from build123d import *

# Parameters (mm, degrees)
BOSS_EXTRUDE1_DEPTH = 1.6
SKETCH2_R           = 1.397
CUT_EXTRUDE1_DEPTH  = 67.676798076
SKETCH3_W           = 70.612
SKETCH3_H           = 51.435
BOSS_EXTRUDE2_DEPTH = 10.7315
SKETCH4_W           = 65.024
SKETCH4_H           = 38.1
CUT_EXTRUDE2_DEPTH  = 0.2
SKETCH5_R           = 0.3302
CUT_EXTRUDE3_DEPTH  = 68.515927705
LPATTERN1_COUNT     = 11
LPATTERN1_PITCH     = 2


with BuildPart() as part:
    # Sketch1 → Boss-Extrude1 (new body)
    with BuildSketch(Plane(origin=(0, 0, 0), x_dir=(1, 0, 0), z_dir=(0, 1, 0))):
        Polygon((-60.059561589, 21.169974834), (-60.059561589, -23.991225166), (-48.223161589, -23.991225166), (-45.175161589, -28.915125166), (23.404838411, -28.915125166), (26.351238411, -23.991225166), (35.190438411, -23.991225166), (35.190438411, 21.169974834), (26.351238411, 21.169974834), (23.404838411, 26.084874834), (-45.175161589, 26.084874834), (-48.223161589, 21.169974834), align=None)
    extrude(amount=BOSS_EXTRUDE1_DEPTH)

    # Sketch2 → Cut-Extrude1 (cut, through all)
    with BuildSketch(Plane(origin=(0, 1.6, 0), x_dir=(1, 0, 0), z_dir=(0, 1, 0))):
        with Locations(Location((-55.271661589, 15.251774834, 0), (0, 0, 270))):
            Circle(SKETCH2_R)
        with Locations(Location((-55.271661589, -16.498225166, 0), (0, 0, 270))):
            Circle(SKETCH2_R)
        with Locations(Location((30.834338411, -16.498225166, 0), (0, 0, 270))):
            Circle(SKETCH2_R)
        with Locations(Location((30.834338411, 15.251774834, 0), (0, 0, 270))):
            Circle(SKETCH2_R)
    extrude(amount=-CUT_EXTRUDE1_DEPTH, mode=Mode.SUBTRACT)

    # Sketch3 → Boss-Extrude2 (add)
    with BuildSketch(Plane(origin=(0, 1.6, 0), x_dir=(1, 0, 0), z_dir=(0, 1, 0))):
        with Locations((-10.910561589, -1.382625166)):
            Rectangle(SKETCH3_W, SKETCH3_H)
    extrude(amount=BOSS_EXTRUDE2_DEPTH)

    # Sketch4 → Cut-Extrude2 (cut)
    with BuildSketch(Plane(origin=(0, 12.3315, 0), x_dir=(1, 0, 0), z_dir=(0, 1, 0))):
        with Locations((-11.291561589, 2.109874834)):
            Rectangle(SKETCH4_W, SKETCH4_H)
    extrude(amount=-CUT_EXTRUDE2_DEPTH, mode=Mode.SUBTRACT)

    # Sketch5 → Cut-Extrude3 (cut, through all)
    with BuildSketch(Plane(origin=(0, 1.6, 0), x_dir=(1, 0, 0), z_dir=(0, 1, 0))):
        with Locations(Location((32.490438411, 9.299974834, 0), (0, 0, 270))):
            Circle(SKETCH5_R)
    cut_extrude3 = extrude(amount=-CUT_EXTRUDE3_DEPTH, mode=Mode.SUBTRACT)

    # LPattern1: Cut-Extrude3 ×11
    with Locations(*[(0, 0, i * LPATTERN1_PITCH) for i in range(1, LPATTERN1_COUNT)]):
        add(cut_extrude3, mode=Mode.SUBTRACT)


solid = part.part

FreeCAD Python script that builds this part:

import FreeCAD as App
import Part
import Sketcher
Q = App.Units.Quantity

doc = App.newDocument("Part")
body = doc.addObject("PartDesign::Body", "Body")

sketch1 = doc.addObject("Sketcher::SketchObject", "Sketch")
body.addObject(sketch1)
sketch1.AttachmentSupport = (doc.XZ_Plane, [""])
sketch1.MapMode = "FlatFace"
sketch1.addGeometry([
    Part.LineSegment(App.Vector(-60, -21, 0), App.Vector(-60, 24, 0)),
    Part.LineSegment(App.Vector(-60, 24, 0), App.Vector(-48, 24, 0)),
    Part.LineSegment(App.Vector(-48, 24, 0), App.Vector(-45, 29, 0)),
    Part.LineSegment(App.Vector(-45, 29, 0), App.Vector(23, 29, 0)),
    Part.LineSegment(App.Vector(23, 29, 0), App.Vector(26, 24, 0)),
    Part.LineSegment(App.Vector(26, 24, 0), App.Vector(35, 24, 0)),
    Part.LineSegment(App.Vector(35, 24, 0), App.Vector(35, -21, 0)),
    Part.LineSegment(App.Vector(35, -21, 0), App.Vector(26, -21, 0)),
    Part.LineSegment(App.Vector(26, -21, 0), App.Vector(23, -26, 0)),
    Part.LineSegment(App.Vector(23, -26, 0), App.Vector(-45, -26, 0)),
    Part.LineSegment(App.Vector(-45, -26, 0), App.Vector(-48, -21, 0)),
    Part.LineSegment(App.Vector(-48, -21, 0), App.Vector(-60, -21, 0)),
], False)
sketch1.addConstraint([
    Sketcher.Constraint("Coincident", 0, 2, 1, 1),
    Sketcher.Constraint("Coincident", 1, 2, 2, 1),
    Sketcher.Constraint("Coincident", 2, 2, 3, 1),
    Sketcher.Constraint("Coincident", 3, 2, 4, 1),
    Sketcher.Constraint("Coincident", 4, 2, 5, 1),
    Sketcher.Constraint("Coincident", 5, 2, 6, 1),
    Sketcher.Constraint("Coincident", 6, 2, 7, 1),
    Sketcher.Constraint("Coincident", 7, 2, 8, 1),
    Sketcher.Constraint("Coincident", 8, 2, 9, 1),
    Sketcher.Constraint("Coincident", 9, 2, 10, 1),
    Sketcher.Constraint("Coincident", 10, 2, 11, 1),
    Sketcher.Constraint("Coincident", 11, 2, 0, 1),
    Sketcher.Constraint("Vertical", 0),
    Sketcher.Constraint("Horizontal", 1),
    Sketcher.Constraint("Horizontal", 3),
    Sketcher.Constraint("Horizontal", 5),
    Sketcher.Constraint("Vertical", 6),
    Sketcher.Constraint("Horizontal", 7),
    Sketcher.Constraint("Horizontal", 9),
    Sketcher.Constraint("Horizontal", 11),
    Sketcher.Constraint("Horizontal", 1, 2, 4, 2),
    Sketcher.Constraint("Horizontal", 7, 2, 10, 2),
    Sketcher.Constraint("Vertical", 4, 2, 7, 2),
    Sketcher.Constraint("Vertical", 3, 2, 8, 2),
    Sketcher.Constraint("Vertical", 2, 2, 9, 2),
    Sketcher.Constraint("Vertical", 1, 2, 10, 2),
    Sketcher.Constraint("DistanceX", 3, 1, 3, 2, Q("2.7 in")),
    Sketcher.Constraint("DistanceX", 1, 1, 1, 2, Q("0.466 in")),
    Sketcher.Constraint("DistanceX", 5, 1, 5, 2, Q("0.348 in")),
    Sketcher.Constraint("DistanceY", 0, 1, 0, 2, Q("1.778 in")),
    Sketcher.Constraint("DistanceX", 1, 2, 2, 2, Q("0.12 in")),
    Sketcher.Constraint("DistanceX", 0, 2, 5, 2, Q("3.75 in")),
    Sketcher.Constraint("DistanceY", 8, 2, 7, 2, Q("0.1935 in")),
    Sketcher.Constraint("DistanceY", 1, 2, 2, 2, Q("4.9239 mm")),
    Sketcher.Constraint("DistanceX", 0, 2, -1, 1, Q("60.059562 mm")),
    Sketcher.Constraint("DistanceY", -1, 1, 0, 2, Q("23.991225 mm")),
])
pad1 = doc.addObject("PartDesign::Pad", "Pad")
body.addObject(pad1)
pad1.Profile = sketch1
pad1.Length = 1.6
pad1.Reversed = True

sketch2 = doc.addObject("Sketcher::SketchObject", "Sketch001")
body.addObject(sketch2)
sketch2.AttachmentSupport = (doc.XZ_Plane, [""])
sketch2.MapMode = "FlatFace"
sketch2.AttachmentOffset = App.Placement(App.Vector(0, 0, -1.6), App.Rotation())
sketch2.addGeometry([
    Part.Circle(App.Vector(-55.3, -15.3, 0), App.Vector(0, 0, 1), 1.4),
    Part.Circle(App.Vector(-55.3, 16.5, 0), App.Vector(0, 0, 1), 1.4),
    Part.Circle(App.Vector(30.8, 16.5, 0), App.Vector(0, 0, 1), 1.4),
    Part.Circle(App.Vector(30.8, -15.3, 0), App.Vector(0, 0, 1), 1.4),
], False)
sketch2.addConstraint([
    Sketcher.Constraint("Equal", 0, 1),
    Sketcher.Constraint("Equal", 1, 2),
    Sketcher.Constraint("Equal", 2, 3),
    Sketcher.Constraint("Horizontal", 1, 3, 2, 3),
    Sketcher.Constraint("Horizontal", 0, 3, 3, 3),
    Sketcher.Constraint("Vertical", 0, 3, 1, 3),
    Sketcher.Constraint("Vertical", 2, 3, 3, 3),
    Sketcher.Constraint("Diameter", 0, Q("0.11 in")),
    Sketcher.Constraint("DistanceY", 0, 3, 1, 3, Q("1.25 in")),
    Sketcher.Constraint("DistanceX", 1, 3, 2, 3, Q("3.39 in")),
    Sketcher.Constraint("DistanceX", 0, 3, -1, 1, Q("55.271662 mm")),
    Sketcher.Constraint("DistanceY", 0, 3, -1, 1, Q("15.251775 mm")),
])
pocket1 = doc.addObject("PartDesign::Pocket", "Pocket")
body.addObject(pocket1)
pocket1.Profile = sketch2
pocket1.Type = "ThroughAll"
pocket1.Reversed = True

sketch3 = doc.addObject("Sketcher::SketchObject", "Sketch002")
body.addObject(sketch3)
sketch3.AttachmentSupport = (doc.XZ_Plane, [""])
sketch3.MapMode = "FlatFace"
sketch3.AttachmentOffset = App.Placement(App.Vector(0, 0, -1.6), App.Rotation())
sketch3.addGeometry([
    Part.LineSegment(App.Vector(-46, -24, 0), App.Vector(-46, 27, 0)),
    Part.LineSegment(App.Vector(-46, 27, 0), App.Vector(24, 27, 0)),
    Part.LineSegment(App.Vector(24, 27, 0), App.Vector(24, -24, 0)),
    Part.LineSegment(App.Vector(24, -24, 0), App.Vector(-46, -24, 0)),
], False)
sketch3.addConstraint([
    Sketcher.Constraint("Coincident", 0, 2, 1, 1),
    Sketcher.Constraint("Coincident", 1, 2, 2, 1),
    Sketcher.Constraint("Coincident", 2, 2, 3, 1),
    Sketcher.Constraint("Coincident", 3, 2, 0, 1),
    Sketcher.Constraint("Vertical", 0),
    Sketcher.Constraint("Horizontal", 1),
    Sketcher.Constraint("Vertical", 2),
    Sketcher.Constraint("Horizontal", 3),
    Sketcher.Constraint("DistanceX", 1, 1, 1, 2, Q("2.78 in")),
    Sketcher.Constraint("DistanceY", 0, 1, 0, 2, Q("2.025 in")),
    Sketcher.Constraint("DistanceX", 0, 2, -1, 1, Q("46.216562 mm")),
    Sketcher.Constraint("DistanceY", -1, 1, 0, 2, Q("27.100125 mm")),
])
pad2 = doc.addObject("PartDesign::Pad", "Pad001")
body.addObject(pad2)
pad2.Profile = sketch3
pad2.Length = Q("0.4225 in")
pad2.Reversed = True

sketch4 = doc.addObject("Sketcher::SketchObject", "Sketch003")
body.addObject(sketch4)
sketch4.AttachmentSupport = (doc.XZ_Plane, [""])
sketch4.MapMode = "FlatFace"
sketch4.AttachmentOffset = App.Placement(App.Vector(0, 0, -12.3315), App.Rotation())
sketch4.addGeometry([
    Part.LineSegment(App.Vector(-44, -21, 0), App.Vector(-44, 17, 0)),
    Part.LineSegment(App.Vector(-44, 17, 0), App.Vector(21, 17, 0)),
    Part.LineSegment(App.Vector(21, 17, 0), App.Vector(21, -21, 0)),
    Part.LineSegment(App.Vector(21, -21, 0), App.Vector(-44, -21, 0)),
], False)
sketch4.addConstraint([
    Sketcher.Constraint("Coincident", 0, 2, 1, 1),
    Sketcher.Constraint("Coincident", 1, 2, 2, 1),
    Sketcher.Constraint("Coincident", 2, 2, 3, 1),
    Sketcher.Constraint("Coincident", 3, 2, 0, 1),
    Sketcher.Constraint("Vertical", 0),
    Sketcher.Constraint("Horizontal", 1),
    Sketcher.Constraint("Vertical", 2),
    Sketcher.Constraint("Horizontal", 3),
    Sketcher.Constraint("DistanceY", 0, 1, 0, 2, Q("1.5 in")),
    Sketcher.Constraint("DistanceX", 1, 1, 1, 2, Q("2.56 in")),
    Sketcher.Constraint("DistanceX", 0, 2, -1, 1, Q("43.803562 mm")),
    Sketcher.Constraint("DistanceY", -1, 1, 0, 2, Q("16.940125 mm")),
])
pocket2 = doc.addObject("PartDesign::Pocket", "Pocket001")
body.addObject(pocket2)
pocket2.Profile = sketch4
pocket2.Length = 0.2
pocket2.Reversed = True

sketch5 = doc.addObject("Sketcher::SketchObject", "Sketch004")
body.addObject(sketch5)
sketch5.AttachmentSupport = (doc.XZ_Plane, [""])
sketch5.MapMode = "FlatFace"
sketch5.AttachmentOffset = App.Placement(App.Vector(0, 0, -1.6), App.Rotation())
sketch5.addGeometry(Part.Circle(App.Vector(32.49, -9.3, 0), App.Vector(0, 0, 1), 0.33), False)
sketch5.addConstraint([
    Sketcher.Constraint("Diameter", 0, Q("0.026 in")),
    Sketcher.Constraint("DistanceX", -1, 1, 0, 3, Q("32.490438 mm")),
    Sketcher.Constraint("DistanceY", 0, 3, -1, 1, Q("9.299975 mm")),
])
pocket3 = doc.addObject("PartDesign::Pocket", "Pocket002")
body.addObject(pocket3)
pocket3.Profile = sketch5
pocket3.Type = "ThroughAll"
pocket3.Reversed = True
doc.recompute()

linearpattern = doc.addObject("PartDesign::LinearPattern", "LinearPattern")
body.addObject(linearpattern)
linearpattern.Originals = [pocket3]
linearpattern.Direction = (doc.Z_Axis, [""])
linearpattern.Mode = "offset"
linearpattern.Offset = 2
linearpattern.Occurrences = 11
body.Tip = linearpattern

doc.recompute()
